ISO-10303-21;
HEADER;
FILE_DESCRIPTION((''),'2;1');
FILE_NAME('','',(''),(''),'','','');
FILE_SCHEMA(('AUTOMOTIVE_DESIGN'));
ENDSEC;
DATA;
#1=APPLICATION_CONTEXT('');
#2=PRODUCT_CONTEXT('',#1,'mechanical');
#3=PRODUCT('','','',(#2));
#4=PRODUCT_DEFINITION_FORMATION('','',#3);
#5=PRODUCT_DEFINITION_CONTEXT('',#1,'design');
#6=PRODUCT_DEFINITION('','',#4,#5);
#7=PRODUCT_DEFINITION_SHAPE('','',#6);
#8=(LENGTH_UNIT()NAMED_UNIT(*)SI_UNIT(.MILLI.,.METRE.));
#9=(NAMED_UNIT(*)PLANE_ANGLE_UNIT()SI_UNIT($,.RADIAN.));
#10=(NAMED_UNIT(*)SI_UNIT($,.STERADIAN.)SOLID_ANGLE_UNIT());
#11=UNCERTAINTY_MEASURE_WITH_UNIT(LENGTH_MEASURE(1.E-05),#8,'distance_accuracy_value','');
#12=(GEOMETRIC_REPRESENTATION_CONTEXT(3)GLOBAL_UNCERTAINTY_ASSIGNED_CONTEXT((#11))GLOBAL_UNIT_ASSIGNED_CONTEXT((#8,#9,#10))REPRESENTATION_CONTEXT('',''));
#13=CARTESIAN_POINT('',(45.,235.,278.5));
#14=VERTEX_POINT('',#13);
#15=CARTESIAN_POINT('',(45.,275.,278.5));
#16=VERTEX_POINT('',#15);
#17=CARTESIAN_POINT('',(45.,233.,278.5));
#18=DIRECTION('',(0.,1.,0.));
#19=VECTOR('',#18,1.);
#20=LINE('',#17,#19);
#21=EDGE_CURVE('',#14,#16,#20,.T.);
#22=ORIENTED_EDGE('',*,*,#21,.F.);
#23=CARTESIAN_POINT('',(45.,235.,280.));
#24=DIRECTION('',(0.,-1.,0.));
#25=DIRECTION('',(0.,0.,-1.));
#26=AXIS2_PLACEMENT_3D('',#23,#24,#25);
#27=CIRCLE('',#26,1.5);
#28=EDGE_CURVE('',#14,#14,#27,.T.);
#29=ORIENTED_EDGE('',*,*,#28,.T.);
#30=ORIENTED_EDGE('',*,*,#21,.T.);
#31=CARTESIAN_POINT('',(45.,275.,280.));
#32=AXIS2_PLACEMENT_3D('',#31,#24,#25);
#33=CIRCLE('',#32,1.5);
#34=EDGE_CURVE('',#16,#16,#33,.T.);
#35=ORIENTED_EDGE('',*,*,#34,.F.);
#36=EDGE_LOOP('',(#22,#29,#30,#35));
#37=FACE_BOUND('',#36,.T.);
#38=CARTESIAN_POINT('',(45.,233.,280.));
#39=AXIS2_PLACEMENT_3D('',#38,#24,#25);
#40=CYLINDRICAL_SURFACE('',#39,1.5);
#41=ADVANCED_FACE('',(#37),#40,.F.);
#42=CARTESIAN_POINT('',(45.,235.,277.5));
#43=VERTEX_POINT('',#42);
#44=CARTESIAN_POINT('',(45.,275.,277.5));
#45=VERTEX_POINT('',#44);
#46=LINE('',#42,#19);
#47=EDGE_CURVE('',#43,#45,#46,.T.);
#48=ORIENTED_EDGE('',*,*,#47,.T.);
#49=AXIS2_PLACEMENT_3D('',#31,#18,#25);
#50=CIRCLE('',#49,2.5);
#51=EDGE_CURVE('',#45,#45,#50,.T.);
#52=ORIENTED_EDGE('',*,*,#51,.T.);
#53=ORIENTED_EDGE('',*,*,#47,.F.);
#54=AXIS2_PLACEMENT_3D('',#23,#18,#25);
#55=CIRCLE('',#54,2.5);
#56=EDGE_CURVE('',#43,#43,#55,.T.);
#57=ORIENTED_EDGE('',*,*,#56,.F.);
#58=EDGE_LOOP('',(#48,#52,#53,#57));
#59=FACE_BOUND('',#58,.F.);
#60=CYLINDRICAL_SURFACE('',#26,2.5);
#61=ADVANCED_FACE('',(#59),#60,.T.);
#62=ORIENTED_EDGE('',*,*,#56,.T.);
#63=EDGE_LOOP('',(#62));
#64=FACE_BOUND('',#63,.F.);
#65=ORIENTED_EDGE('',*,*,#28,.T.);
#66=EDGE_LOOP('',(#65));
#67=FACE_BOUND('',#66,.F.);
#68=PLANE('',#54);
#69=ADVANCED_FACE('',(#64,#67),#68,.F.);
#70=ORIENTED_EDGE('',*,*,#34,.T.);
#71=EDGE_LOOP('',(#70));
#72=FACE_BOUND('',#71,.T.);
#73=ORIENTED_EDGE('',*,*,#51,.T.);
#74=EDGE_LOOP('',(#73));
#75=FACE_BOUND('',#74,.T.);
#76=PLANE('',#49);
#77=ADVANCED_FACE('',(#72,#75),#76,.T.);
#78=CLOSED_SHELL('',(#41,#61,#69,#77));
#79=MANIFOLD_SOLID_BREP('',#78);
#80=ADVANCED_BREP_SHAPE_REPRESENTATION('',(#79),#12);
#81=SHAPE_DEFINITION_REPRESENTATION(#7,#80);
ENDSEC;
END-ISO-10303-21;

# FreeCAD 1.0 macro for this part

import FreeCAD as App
import Part
import Sketcher
from FreeCAD import Vector
Q = App.Units.Quantity

doc = App.newDocument("Part")
params = doc.addObject("Spreadsheet::Sheet", "Params")
for row, (alias, value) in enumerate([
    ("sketch1_diameter", "3 mm"),
    ("pad1_length", "44 mm"),
    ("sketch2_diameter", "5 mm"),
    ("pad2_length", "40 mm"),
], start=1):
    params.set(f"A{row}", alias)
    params.set(f"B{row}", "=" + value)
    params.setAlias(f"B{row}", alias)

body = doc.addObject("PartDesign::Body", "Body")

# Sketch on XY plane
sketch1 = body.newObject("Sketcher::SketchObject", "Sketch")
sketch1.AttachmentSupport = (doc.getObject("XY_Plane"), [""])
sketch1.MapMode = "FlatFace"
sketch1.addGeometry(Part.Circle(Vector(0, 0, 0), Vector(0, 0, 1), 1.5), False)
sketch1.addConstraint([
    Sketcher.Constraint("Coincident", 0, 3, -1, 1),
    Sketcher.Constraint("Diameter", 0, Q("3 mm")),
])
sketch1.setExpression("Constraints[1]", "Params.sketch1_diameter")
pad1 = body.newObject("PartDesign::Pad", "Pad")
pad1.Profile = sketch1
pad1.setExpression("Length", "Params.pad1_length")
body2 = doc.addObject("PartDesign::Body", "Body001")
doc.recompute()

body.Placement = App.Placement(Vector(0, 0, 0), App.Rotation(Vector(0, 1, 0), 90))
boolean = body2.newObject("PartDesign::Boolean", "Boolean")
boolean.Type = "Fuse"
boolean.addObjects([body])
body3 = doc.addObject("PartDesign::Body", "Body002")
doc.recompute()

body2.Placement = App.Placement(Vector(-2, 0, 0), App.Rotation(Vector(0, 0, 1), 0))
boolean2 = body3.newObject("PartDesign::Boolean", "Boolean001")
boolean2.Type = "Fuse"
boolean2.addObjects([body2])
body4 = doc.addObject("PartDesign::Body", "Body003")

# Sketch on XY plane
sketch2 = body4.newObject("Sketcher::SketchObject", "Sketch001")
sketch2.AttachmentSupport = (doc.getObject("XY_Plane003"), [""])
sketch2.MapMode = "FlatFace"
sketch2.addGeometry(Part.Circle(Vector(0, 0, 0), Vector(0, 0, 1), 2.5), False)
sketch2.addConstraint([
    Sketcher.Constraint("Coincident", 0, 3, -1, 1),
    Sketcher.Constraint("Diameter", 0, Q("5 mm")),
])
sketch2.setExpression("Constraints[1]", "Params.sketch2_diameter")
pad2 = body4.newObject("PartDesign::Pad", "Pad001")
pad2.Profile = sketch2
pad2.setExpression("Length", "Params.pad2_length")
body5 = doc.addObject("PartDesign::Body", "Body004")
doc.recompute()

body4.Placement = App.Placement(Vector(0, 0, 0), App.Rotation(Vector(0, 1, 0), 90))
boolean3 = body5.newObject("PartDesign::Boolean", "Boolean002")
boolean3.Type = "Fuse"
boolean3.addObjects([body4])
doc.recompute()

boolean4 = body5.newObject("PartDesign::Boolean", "Boolean003")
boolean4.Type = "Cut"
boolean4.addObjects([body3])
body6 = doc.addObject("PartDesign::Body", "Body005")
doc.recompute()

body5.Placement = App.Placement(Vector(45, 235, 280), App.Rotation(Vector(0, 0, 1), 90))
boolean5 = body6.newObject("PartDesign::Boolean", "Boolean004")
boolean5.Type = "Fuse"
boolean5.addObjects([body5])

doc.recompute()
